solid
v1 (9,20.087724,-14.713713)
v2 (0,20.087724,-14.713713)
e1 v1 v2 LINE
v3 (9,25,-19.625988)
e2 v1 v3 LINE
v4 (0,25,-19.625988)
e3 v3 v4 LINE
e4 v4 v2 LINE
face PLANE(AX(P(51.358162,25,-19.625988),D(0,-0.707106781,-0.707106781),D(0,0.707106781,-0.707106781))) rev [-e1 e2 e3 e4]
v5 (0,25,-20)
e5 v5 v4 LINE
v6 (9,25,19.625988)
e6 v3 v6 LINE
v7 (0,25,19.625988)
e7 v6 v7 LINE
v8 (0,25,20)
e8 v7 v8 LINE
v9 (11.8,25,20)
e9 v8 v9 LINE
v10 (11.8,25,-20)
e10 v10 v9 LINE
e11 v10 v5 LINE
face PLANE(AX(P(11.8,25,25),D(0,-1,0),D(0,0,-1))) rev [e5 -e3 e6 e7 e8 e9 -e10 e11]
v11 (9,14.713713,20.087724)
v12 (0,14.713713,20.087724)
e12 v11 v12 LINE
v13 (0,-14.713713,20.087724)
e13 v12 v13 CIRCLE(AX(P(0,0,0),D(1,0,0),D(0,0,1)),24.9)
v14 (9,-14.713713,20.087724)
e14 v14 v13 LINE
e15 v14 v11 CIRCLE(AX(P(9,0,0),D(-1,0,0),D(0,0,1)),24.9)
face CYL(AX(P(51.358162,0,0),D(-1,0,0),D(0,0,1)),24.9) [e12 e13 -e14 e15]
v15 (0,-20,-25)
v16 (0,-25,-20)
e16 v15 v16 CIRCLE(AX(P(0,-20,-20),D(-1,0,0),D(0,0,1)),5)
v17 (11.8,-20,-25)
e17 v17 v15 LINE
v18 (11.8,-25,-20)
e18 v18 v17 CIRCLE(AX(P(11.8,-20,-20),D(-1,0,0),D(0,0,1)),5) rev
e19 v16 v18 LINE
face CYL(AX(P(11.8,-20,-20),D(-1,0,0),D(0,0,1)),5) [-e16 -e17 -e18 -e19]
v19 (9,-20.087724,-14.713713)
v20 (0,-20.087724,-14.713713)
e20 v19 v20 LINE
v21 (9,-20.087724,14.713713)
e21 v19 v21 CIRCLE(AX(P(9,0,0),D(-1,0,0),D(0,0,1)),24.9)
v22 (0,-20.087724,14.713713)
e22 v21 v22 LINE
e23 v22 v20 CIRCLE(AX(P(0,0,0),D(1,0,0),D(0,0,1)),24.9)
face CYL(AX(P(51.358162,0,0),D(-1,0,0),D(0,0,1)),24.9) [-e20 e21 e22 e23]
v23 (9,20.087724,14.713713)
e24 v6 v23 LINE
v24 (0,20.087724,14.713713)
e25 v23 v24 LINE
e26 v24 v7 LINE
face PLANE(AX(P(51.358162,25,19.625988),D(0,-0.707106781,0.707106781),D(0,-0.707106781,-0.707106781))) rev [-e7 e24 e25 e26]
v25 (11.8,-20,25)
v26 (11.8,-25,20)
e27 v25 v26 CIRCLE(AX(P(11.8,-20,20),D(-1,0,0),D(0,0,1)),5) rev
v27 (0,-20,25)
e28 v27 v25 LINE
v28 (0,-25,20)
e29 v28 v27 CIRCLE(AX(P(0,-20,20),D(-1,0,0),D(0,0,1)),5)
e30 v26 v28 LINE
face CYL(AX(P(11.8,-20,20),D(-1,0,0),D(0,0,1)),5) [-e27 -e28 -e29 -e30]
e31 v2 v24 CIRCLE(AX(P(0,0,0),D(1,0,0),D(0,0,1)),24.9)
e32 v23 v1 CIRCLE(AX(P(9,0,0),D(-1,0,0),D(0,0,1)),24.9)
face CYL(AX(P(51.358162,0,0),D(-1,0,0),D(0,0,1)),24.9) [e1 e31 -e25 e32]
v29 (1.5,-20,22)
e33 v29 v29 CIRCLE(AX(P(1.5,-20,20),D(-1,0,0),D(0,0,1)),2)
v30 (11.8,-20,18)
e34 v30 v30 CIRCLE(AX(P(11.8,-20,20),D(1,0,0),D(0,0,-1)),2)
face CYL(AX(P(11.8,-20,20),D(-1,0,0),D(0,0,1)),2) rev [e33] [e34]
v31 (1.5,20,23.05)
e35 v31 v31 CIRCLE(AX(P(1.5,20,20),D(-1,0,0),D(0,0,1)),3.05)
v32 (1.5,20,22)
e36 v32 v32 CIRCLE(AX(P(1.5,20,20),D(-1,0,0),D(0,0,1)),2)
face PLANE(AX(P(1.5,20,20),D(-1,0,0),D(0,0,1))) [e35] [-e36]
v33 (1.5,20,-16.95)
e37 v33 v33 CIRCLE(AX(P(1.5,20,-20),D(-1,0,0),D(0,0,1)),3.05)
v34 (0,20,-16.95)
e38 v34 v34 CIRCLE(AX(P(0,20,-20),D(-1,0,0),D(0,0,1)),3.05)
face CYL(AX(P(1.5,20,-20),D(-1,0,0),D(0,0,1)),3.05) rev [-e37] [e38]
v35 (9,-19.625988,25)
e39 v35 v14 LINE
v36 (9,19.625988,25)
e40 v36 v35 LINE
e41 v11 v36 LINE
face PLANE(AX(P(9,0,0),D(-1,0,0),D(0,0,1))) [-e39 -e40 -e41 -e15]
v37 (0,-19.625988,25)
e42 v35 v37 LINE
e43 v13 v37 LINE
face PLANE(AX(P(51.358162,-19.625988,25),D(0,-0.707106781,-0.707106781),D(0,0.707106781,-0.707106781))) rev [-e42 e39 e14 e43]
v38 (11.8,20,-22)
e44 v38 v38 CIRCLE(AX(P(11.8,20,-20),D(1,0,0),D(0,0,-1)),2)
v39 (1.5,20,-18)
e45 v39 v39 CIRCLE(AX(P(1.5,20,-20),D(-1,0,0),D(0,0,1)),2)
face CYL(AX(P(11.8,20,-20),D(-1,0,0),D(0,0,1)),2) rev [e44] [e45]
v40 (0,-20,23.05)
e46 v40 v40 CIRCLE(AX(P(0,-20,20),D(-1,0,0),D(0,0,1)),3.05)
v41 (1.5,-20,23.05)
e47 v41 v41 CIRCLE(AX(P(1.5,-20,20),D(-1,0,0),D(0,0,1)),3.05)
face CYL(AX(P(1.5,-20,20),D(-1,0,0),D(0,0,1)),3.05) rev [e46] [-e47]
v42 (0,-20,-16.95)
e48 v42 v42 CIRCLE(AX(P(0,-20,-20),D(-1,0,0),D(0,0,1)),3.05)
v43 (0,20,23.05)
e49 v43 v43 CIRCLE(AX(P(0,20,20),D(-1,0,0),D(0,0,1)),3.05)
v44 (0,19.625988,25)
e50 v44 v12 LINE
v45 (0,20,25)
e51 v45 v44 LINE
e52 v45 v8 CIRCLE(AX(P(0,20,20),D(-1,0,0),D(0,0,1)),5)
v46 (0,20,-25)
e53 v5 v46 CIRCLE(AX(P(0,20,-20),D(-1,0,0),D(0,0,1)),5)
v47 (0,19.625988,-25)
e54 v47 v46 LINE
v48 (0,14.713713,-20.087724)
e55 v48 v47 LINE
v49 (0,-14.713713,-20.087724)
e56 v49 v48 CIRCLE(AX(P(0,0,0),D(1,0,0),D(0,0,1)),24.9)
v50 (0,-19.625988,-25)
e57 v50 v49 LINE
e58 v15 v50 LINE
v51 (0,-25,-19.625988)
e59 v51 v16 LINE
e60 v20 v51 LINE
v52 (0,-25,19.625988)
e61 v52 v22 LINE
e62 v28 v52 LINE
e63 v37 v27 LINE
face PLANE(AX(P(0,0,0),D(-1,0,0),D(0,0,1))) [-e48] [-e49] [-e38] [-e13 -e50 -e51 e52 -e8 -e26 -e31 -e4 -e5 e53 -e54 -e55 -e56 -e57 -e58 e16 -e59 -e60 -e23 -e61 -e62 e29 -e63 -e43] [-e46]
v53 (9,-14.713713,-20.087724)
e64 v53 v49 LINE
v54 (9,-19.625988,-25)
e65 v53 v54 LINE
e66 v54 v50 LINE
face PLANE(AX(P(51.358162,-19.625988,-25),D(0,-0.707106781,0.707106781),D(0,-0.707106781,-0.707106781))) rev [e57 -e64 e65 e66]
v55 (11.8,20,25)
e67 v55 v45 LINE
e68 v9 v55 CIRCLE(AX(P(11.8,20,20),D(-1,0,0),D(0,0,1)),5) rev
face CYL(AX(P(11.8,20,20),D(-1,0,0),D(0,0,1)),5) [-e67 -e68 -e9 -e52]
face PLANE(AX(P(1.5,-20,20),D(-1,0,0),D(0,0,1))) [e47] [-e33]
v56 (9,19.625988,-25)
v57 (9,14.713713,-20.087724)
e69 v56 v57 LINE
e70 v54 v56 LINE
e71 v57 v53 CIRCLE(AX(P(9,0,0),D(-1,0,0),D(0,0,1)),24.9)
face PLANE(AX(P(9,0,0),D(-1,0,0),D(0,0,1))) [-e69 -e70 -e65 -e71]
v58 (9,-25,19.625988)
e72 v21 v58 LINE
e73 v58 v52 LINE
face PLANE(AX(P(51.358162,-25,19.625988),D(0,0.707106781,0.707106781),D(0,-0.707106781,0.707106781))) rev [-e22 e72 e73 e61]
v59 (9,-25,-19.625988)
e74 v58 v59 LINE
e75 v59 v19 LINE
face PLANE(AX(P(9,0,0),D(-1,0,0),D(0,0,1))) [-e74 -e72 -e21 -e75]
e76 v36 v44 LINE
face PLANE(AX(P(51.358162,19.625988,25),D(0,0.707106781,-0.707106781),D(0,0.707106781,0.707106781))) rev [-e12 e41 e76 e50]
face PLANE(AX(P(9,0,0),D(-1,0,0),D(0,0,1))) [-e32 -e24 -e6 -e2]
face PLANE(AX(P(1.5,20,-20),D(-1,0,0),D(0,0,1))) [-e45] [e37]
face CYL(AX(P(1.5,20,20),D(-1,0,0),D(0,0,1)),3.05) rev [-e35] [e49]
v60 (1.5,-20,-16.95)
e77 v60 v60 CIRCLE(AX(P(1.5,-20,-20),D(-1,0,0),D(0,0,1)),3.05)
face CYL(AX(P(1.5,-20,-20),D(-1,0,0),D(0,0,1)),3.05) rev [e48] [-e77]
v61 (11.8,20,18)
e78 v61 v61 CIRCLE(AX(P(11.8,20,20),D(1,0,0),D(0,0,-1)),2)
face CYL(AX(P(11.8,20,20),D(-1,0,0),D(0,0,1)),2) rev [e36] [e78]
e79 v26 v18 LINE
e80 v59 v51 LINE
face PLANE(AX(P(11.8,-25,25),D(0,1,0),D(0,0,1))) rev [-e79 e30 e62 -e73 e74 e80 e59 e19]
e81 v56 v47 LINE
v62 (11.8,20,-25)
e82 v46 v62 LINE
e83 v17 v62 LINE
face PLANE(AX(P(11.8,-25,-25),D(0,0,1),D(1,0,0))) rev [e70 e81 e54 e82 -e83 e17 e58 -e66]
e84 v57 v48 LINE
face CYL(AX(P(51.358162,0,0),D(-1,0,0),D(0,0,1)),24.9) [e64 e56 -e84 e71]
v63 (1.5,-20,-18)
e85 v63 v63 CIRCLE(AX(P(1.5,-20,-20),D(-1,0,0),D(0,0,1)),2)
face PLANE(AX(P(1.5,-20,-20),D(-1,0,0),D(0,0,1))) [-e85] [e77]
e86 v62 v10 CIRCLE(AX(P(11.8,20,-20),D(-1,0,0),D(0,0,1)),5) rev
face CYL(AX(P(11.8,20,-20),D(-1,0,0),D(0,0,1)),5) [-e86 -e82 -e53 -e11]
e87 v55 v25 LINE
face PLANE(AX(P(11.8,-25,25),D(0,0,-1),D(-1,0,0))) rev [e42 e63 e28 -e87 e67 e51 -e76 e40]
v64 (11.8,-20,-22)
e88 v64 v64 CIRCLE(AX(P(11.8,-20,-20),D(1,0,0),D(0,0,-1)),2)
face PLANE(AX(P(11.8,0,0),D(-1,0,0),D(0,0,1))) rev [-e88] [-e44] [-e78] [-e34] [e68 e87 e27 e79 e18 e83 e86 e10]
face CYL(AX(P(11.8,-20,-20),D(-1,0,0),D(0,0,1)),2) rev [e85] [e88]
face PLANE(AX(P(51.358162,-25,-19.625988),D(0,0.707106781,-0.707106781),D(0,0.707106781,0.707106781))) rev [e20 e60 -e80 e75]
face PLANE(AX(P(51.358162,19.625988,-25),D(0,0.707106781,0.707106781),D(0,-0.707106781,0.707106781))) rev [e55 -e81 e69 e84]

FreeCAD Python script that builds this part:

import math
import FreeCAD as App
import Part
import Sketcher

V = App.Vector


def edges_at(feature, points):
    """Names of the edges that pass closest to the given points."""
    edges = feature.Shape.Edges
    near = lambda p: min(range(len(edges)), key=lambda i: edges[i].distToShape(Part.Vertex(*p))[0])
    return sorted({f"Edge{near(p) + 1}" for p in points})

doc = App.newDocument("Part")
params = doc.addObject("Spreadsheet::Sheet", "Params")
for row, (alias, value) in enumerate([
    ("sketch1_diameter", "4 mm"),
    ("sketch1_width", "50 mm"),
    ("pad1_length", "11.8 mm"),
    ("fillet_radius", "5 mm"),
    ("sketch2_diameter", "6.1 mm"),
    ("pocket1_length", "1.5 mm"),
    ("sketch3_radius", "24.9 mm"),
    ("pocket2_length", "9 mm"),
], start=1):
    params.set(f"A{row}", alias)
    params.set(f"B{row}", "=" + value)
    params.setAlias(f"B{row}", alias)

body = doc.addObject("PartDesign::Body", "Body")

sketch1 = body.newObject("Sketcher::SketchObject", "Sketch")
sketch1.AttachmentSupport = (doc.getObject("YZ_Plane"), [""])
sketch1.MapMode = "FlatFace"
sketch1.addGeometry([
    Part.LineSegment(V(25, 25, 0), V(-25, 25, 0)),
    Part.LineSegment(V(-25, 25, 0), V(-25, -25, 0)),
    Part.LineSegment(V(-25, -25, 0), V(25, -25, 0)),
    Part.LineSegment(V(25, -25, 0), V(25, 25, 0)),
    Part.Circle(V(-20, 20, 0), V(0, 0, 1), 2),
    Part.Circle(V(-20, -20, 0), V(0, 0, 1), 2),
    Part.Circle(V(20, 20, 0), V(0, 0, 1), 2),
    Part.Circle(V(20, -20, 0), V(0, 0, 1), 2),
], False)
sketch1.addConstraint([
    Sketcher.Constraint("Coincident", 0, 2, 1, 1),
    Sketcher.Constraint("Coincident", 1, 2, 2, 1),
    Sketcher.Constraint("Coincident", 2, 2, 3, 1),
    Sketcher.Constraint("Coincident", 3, 2, 0, 1),
    Sketcher.Constraint("Horizontal", 0),
    Sketcher.Constraint("Vertical", 1),
    Sketcher.Constraint("Horizontal", 2),
    Sketcher.Constraint("Vertical", 3),
    Sketcher.Constraint("Equal", 4, 5),
    Sketcher.Constraint("Equal", 5, 6),
    Sketcher.Constraint("Equal", 6, 7),
    Sketcher.Constraint("Symmetric", 5, 3, 6, 3, -1, 1),
    Sketcher.Constraint("Symmetric", 4, 3, 7, 3, -1, 1),
    Sketcher.Constraint("Symmetric", 0, 2, 2, 2, -1, 1),
    Sketcher.Constraint("Symmetric", 4, 3, 6, 3, -2),
    Sketcher.Constraint("Equal", 2, 1),
    Sketcher.Constraint("Diameter", 4, 4.0),
    Sketcher.Constraint("DistanceX", 0, 2, 0, 1, 50.0),
    Sketcher.Constraint("DistanceX", 4, 3, -1, 1, 20.0),
    Sketcher.Constraint("DistanceY", -1, 1, 4, 3, 20.0),
])
sketch1.setExpression("Constraints[16]", "Params.sketch1_diameter")
sketch1.setExpression("Constraints[17]", "Params.sketch1_width")
pad1 = body.newObject("PartDesign::Pad", "Pad")
pad1.Profile = sketch1
pad1.setExpression("Length", "Params.pad1_length")
doc.recompute()

fillet = body.newObject("PartDesign::Fillet", "Fillet")
fillet.Base = (pad1, edges_at(pad1, [
    (5.9, -25, -25),
    (5.9, -25, 25),
    (5.9, 25, 25),
    (5.9, 25, -25),
]))
fillet.setExpression("Radius", "Params.fillet_radius")

sketch2 = body.newObject("Sketcher::SketchObject", "Sketch001")
sketch2.AttachmentSupport = (doc.getObject("YZ_Plane"), [""])
sketch2.MapMode = "FlatFace"
sketch2.addGeometry([
    Part.Circle(V(-20, -20, 0), V(0, 0, 1), 3.05),
    Part.Circle(V(20, -20, 0), V(0, 0, 1), 3.05),
    Part.Circle(V(20, 20, 0), V(0, 0, 1), 3.05),
    Part.Circle(V(-20, 20, 0), V(0, 0, 1), 3.05),
], False)
sketch2.addConstraint([
    Sketcher.Constraint("Equal", 0, 1),
    Sketcher.Constraint("Equal", 1, 2),
    Sketcher.Constraint("Equal", 2, 3),
    Sketcher.Constraint("Symmetric", 0, 3, 2, 3, -1, 1),
    Sketcher.Constraint("Symmetric", 1, 3, 3, 3, -1, 1),
    Sketcher.Constraint("Symmetric", 0, 3, 1, 3, -2),
    Sketcher.Constraint("Diameter", 0, 6.1),
    Sketcher.Constraint("DistanceX", 0, 3, -1, 1, 20.0),
    Sketcher.Constraint("DistanceY", 0, 3, -1, 1, 20.0),
])
sketch2.setExpression("Constraints[6]", "Params.sketch2_diameter")
pocket1 = body.newObject("PartDesign::Pocket", "Pocket")
pocket1.Profile = sketch2
pocket1.setExpression("Length", "Params.pocket1_length")
pocket1.Reversed = True

sketch3 = body.newObject("Sketcher::SketchObject", "Sketch002")
sketch3.AttachmentSupport = (doc.getObject("YZ_Plane"), [""])
sketch3.MapMode = "FlatFace"
sketch3.addGeometry([
    Part.LineSegment(V(-19.625988, -25, 0), V(-14.713713, -20.087724, 0)),
    Part.ArcOfCircle(Part.Circle(V(0, 0, 0), V(0, 0, 1), 24.9), math.radians(-126.221764), math.radians(-53.778236)),
    Part.LineSegment(V(14.713713, -20.087724, 0), V(19.625988, -25, 0)),
    Part.LineSegment(V(19.625988, -25, 0), V(-19.625988, -25, 0)),
    Part.LineSegment(V(-20.087724, -14.713713, 0), V(-25, -19.625988, 0)),
    Part.LineSegment(V(-25, -19.625988, 0), V(-25, 19.625988, 0)),
    Part.LineSegment(V(-25, 19.625988, 0), V(-20.087724, 14.713713, 0)),
    Part.ArcOfCircle(Part.Circle(V(0, 0, 0), V(0, 0, 1), 24.9), math.radians(143.778236), math.radians(216.221764)),
    Part.LineSegment(V(25, -19.625988, 0), V(20.087724, -14.713713, 0)),
    Part.ArcOfCircle(Part.Circle(V(0, 0, 0), V(0, 0, 1), 24.9), math.radians(-36.221764), math.radians(36.221764)),
    Part.LineSegment(V(20.087724, 14.713713, 0), V(25, 19.625988, 0)),
    Part.LineSegment(V(25, 19.625988, 0), V(25, -19.625988, 0)),
    Part.LineSegment(V(19.625988, 25, 0), V(14.713713, 20.087724, 0)),
    Part.ArcOfCircle(Part.Circle(V(0, 0, 0), V(0, 0, 1), 24.9), math.radians(53.778236), math.radians(126.221764)),
    Part.LineSegment(V(-14.713713, 20.087724, 0), V(-19.625988, 25, 0)),
    Part.LineSegment(V(-19.625988, 25, 0), V(19.625988, 25, 0)),
], False)
sketch3.addConstraint([
    Sketcher.Constraint("Coincident", 0, 2, 1, 1),
    Sketcher.Constraint("Coincident", 1, 2, 2, 1),
    Sketcher.Constraint("Coincident", 2, 2, 3, 1),
    Sketcher.Constraint("Coincident", 3, 2, 0, 1),
    Sketcher.Constraint("Coincident", 4, 2, 5, 1),
    Sketcher.Constraint("Coincident", 5, 2, 6, 1),
    Sketcher.Constraint("Coincident", 6, 2, 7, 1),
    Sketcher.Constraint("Coincident", 7, 2, 4, 1),
    Sketcher.Constraint("Coincident", 8, 2, 9, 1),
    Sketcher.Constraint("Coincident", 9, 2, 10, 1),
    Sketcher.Constraint("Coincident", 10, 2, 11, 1),
    Sketcher.Constraint("Coincident", 11, 2, 8, 1),
    Sketcher.Constraint("Coincident", 12, 2, 13, 1),
    Sketcher.Constraint("Coincident", 13, 2, 14, 1),
    Sketcher.Constraint("Coincident", 14, 2, 15, 1),
    Sketcher.Constraint("Coincident", 15, 2, 12, 1),
    Sketcher.Constraint("Horizontal", 3),
    Sketcher.Constraint("Vertical", 5),
    Sketcher.Constraint("Vertical", 11),
    Sketcher.Constraint("Horizontal", 15),
    Sketcher.Constraint("Coincident", 1, 3, -1, 1),
    Sketcher.Constraint("Coincident", 7, 3, -1, 1),
    Sketcher.Constraint("Coincident", 9, 3, -1, 1),
    Sketcher.Constraint("Coincident", 13, 3, -1, 1),
    Sketcher.Constraint("Equal", 1, 7),
    Sketcher.Constraint("Equal", 7, 9),
    Sketcher.Constraint("Equal", 9, 13),
    Sketcher.Constraint("Symmetric", 4, 2, 10, 2, -1, 1),
    Sketcher.Constraint("Symmetric", 2, 2, 14, 2, -1, 1),
    Sketcher.Constraint("Perpendicular", 0, 2),
    Sketcher.Constraint("Perpendicular", 2, 4),
    Sketcher.Constraint("Perpendicular", 4, 6),
    Sketcher.Constraint("Parallel", 6, 8),
    Sketcher.Constraint("Perpendicular", 8, 10),
    Sketcher.Constraint("Parallel", 10, 12),
    Sketcher.Constraint("Perpendicular", 12, 14),
    Sketcher.Constraint("Horizontal", 0, 2, 1, 2),
    Sketcher.Constraint("Horizontal", 7, 2, 8, 2),
    Sketcher.Constraint("Horizontal", 6, 2, 9, 2),
    Sketcher.Constraint("Horizontal", 5, 2, 10, 2),
    Sketcher.Constraint("Horizontal", 12, 2, 13, 2),
    Sketcher.Constraint("Equal", 15, 5),
    Sketcher.Constraint("Equal", 2, 4),
    Sketcher.Constraint("Radius", 1, 24.9),
    Sketcher.Constraint("DistanceY", 2, 2, -1, 1, 25.0),
    Sketcher.Constraint("DistanceX", 3, 2, 3, 1, 39.251977),
])
sketch3.setExpression("Constraints[43]", "Params.sketch3_radius")
pocket2 = body.newObject("PartDesign::Pocket", "Pocket001")
pocket2.Profile = sketch3
pocket2.setExpression("Length", "Params.pocket2_length")
pocket2.Reversed = True

doc.recompute()
